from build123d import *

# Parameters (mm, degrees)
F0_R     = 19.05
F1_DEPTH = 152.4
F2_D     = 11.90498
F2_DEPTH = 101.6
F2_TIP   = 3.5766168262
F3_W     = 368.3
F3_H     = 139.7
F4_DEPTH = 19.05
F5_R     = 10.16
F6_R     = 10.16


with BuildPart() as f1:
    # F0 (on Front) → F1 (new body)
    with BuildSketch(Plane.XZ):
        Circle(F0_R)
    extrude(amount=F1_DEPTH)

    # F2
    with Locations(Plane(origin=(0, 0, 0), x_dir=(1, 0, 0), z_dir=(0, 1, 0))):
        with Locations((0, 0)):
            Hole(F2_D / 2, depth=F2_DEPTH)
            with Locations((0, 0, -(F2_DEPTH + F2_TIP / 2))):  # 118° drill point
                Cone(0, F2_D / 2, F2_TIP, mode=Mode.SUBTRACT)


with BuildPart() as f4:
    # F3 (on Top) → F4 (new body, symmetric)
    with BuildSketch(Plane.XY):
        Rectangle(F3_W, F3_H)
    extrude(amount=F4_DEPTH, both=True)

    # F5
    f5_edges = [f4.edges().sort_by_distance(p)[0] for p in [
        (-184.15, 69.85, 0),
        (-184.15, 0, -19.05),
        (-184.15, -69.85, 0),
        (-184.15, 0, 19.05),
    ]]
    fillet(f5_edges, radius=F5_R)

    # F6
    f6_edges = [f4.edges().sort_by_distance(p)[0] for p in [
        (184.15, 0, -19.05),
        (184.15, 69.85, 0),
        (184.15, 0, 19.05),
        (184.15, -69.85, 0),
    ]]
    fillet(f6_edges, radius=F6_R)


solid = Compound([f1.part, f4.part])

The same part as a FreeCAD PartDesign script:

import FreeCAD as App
import Part
import Sketcher
from FreeCAD import Vector
Q = App.Units.Quantity


def edges_at(feature, points):
    """Names of the edges that pass closest to the given points."""
    edges = feature.Shape.Edges
    near = lambda p: min(range(len(edges)), key=lambda i: edges[i].distToShape(Part.Vertex(*p))[0])
    return sorted({f"Edge{near(p) + 1}" for p in points})

doc = App.newDocument("Part")
params = doc.addObject("Spreadsheet::Sheet", "Params")
for row, (alias, value) in enumerate([
    ("sketch1_diameter", "1.5 in"),
    ("pad1_length", "6 in"),
    ("hole_diameter", "0.4687 in"),
    ("hole_depth", "4 in"),
    ("sketch3_width", "14.5 in"),
    ("sketch3_height", "5.5 in"),
    ("pad2_length", "1.5 in"),
    ("fillet_radius", "0.4 in"),
    ("fillet2_radius", "0.4 in"),
], start=1):
    params.set(f"A{row}", alias)
    params.set(f"B{row}", "=" + value)
    params.setAlias(f"B{row}", alias)

body = doc.addObject("PartDesign::Body", "Body")

# Sketch on XZ plane
sketch1 = body.newObject("Sketcher::SketchObject", "Sketch")
sketch1.AttachmentSupport = (doc.getObject("XZ_Plane"), [""])
sketch1.MapMode = "FlatFace"
sketch1.addGeometry(Part.Circle(Vector(0, 0, 0), Vector(0, 0, 1), 19), False)
sketch1.addConstraint([
    Sketcher.Constraint("Coincident", 0, 3, -1, 1),
    Sketcher.Constraint("Diameter", 0, Q("1.5 in")),
])
sketch1.setExpression("Constraints[1]", "Params.sketch1_diameter")
pad1 = body.newObject("PartDesign::Pad", "Pad")
pad1.Profile = sketch1
pad1.setExpression("Length", "Params.pad1_length")

# Sketch on XZ plane
sketch2 = body.newObject("Sketcher::SketchObject", "Sketch001")
sketch2.AttachmentSupport = (doc.getObject("XZ_Plane"), [""])
sketch2.MapMode = "FlatFace"
sketch2.addGeometry(Part.Circle(Vector(0, 0, 0), Vector(0, 0, 1), 6), False)
sketch2.addConstraint([
    Sketcher.Constraint("Coincident", 0, 3, -1, 1),
    Sketcher.Constraint("Diameter", 0, Q("0.4687 in")),
])
doc.recompute()
hole = body.newObject("PartDesign::Hole", "Hole")
hole.Profile = sketch2
hole.ThreadType = "None"
hole.setExpression("Diameter", "Params.hole_diameter")
hole.DepthType = "Dimension"
hole.setExpression("Depth", "Params.hole_depth")
hole.DrillPoint = "Angled"
hole.DrillPointAngle = 118
hole.Reversed = True
body2 = doc.addObject("PartDesign::Body", "Body001")

# Sketch on XY plane
sketch3 = body2.newObject("Sketcher::SketchObject", "Sketch002")
sketch3.AttachmentSupport = (doc.getObject("XY_Plane001"), [""])
sketch3.MapMode = "FlatFace"
sketch3.addGeometry([
    Part.LineSegment(Vector(-184, 70, 0), Vector(-184, -70, 0)),
    Part.LineSegment(Vector(-184, -70, 0), Vector(184, -70, 0)),
    Part.LineSegment(Vector(184, -70, 0), Vector(184, 70, 0)),
    Part.LineSegment(Vector(184, 70, 0), Vector(-184, 70, 0)),
], False)
sketch3.addConstraint([
    Sketcher.Constraint("Coincident", 0, 2, 1, 1),
    Sketcher.Constraint("Coincident", 1, 2, 2, 1),
    Sketcher.Constraint("Coincident", 2, 2, 3, 1),
    Sketcher.Constraint("Coincident", 3, 2, 0, 1),
    Sketcher.Constraint("Vertical", 0),
    Sketcher.Constraint("Horizontal", 1),
    Sketcher.Constraint("Vertical", 2),
    Sketcher.Constraint("Horizontal", 3),
    Sketcher.Constraint("Symmetric", 0, 2, 2, 2, -1, 1),
    Sketcher.Constraint("DistanceX", 1, 1, 1, 2, Q("14.5 in")),
    Sketcher.Constraint("DistanceY", 0, 2, 0, 1, Q("5.5 in")),
])
sketch3.setExpression("Constraints[9]", "Params.sketch3_width")
sketch3.setExpression("Constraints[10]", "Params.sketch3_height")
pad2 = body2.newObject("PartDesign::Pad", "Pad001")
pad2.Profile = sketch3
pad2.setExpression("Length", "Params.pad2_length")
pad2.Midplane = True
doc.recompute()

fillet = body2.newObject("PartDesign::Fillet", "Fillet")
fillet.Base = (pad2, edges_at(pad2, [
    (-184.15, 69.85, 0),
    (-184.15, 0, -19.05),
    (-184.15, -69.85, 0),
    (-184.15, 0, 19.05),
]))
fillet.setExpression("Radius", "Params.fillet_radius")
doc.recompute()

fillet2 = body2.newObject("PartDesign::Fillet", "Fillet001")
fillet2.Base = (fillet, edges_at(fillet, [
    (184.15, 0, -19.05),
    (184.15, 69.85, 0),
    (184.15, 0, 19.05),
    (184.15, -69.85, 0),
]))
fillet2.setExpression("Radius", "Params.fillet2_radius")

doc.recompute()
